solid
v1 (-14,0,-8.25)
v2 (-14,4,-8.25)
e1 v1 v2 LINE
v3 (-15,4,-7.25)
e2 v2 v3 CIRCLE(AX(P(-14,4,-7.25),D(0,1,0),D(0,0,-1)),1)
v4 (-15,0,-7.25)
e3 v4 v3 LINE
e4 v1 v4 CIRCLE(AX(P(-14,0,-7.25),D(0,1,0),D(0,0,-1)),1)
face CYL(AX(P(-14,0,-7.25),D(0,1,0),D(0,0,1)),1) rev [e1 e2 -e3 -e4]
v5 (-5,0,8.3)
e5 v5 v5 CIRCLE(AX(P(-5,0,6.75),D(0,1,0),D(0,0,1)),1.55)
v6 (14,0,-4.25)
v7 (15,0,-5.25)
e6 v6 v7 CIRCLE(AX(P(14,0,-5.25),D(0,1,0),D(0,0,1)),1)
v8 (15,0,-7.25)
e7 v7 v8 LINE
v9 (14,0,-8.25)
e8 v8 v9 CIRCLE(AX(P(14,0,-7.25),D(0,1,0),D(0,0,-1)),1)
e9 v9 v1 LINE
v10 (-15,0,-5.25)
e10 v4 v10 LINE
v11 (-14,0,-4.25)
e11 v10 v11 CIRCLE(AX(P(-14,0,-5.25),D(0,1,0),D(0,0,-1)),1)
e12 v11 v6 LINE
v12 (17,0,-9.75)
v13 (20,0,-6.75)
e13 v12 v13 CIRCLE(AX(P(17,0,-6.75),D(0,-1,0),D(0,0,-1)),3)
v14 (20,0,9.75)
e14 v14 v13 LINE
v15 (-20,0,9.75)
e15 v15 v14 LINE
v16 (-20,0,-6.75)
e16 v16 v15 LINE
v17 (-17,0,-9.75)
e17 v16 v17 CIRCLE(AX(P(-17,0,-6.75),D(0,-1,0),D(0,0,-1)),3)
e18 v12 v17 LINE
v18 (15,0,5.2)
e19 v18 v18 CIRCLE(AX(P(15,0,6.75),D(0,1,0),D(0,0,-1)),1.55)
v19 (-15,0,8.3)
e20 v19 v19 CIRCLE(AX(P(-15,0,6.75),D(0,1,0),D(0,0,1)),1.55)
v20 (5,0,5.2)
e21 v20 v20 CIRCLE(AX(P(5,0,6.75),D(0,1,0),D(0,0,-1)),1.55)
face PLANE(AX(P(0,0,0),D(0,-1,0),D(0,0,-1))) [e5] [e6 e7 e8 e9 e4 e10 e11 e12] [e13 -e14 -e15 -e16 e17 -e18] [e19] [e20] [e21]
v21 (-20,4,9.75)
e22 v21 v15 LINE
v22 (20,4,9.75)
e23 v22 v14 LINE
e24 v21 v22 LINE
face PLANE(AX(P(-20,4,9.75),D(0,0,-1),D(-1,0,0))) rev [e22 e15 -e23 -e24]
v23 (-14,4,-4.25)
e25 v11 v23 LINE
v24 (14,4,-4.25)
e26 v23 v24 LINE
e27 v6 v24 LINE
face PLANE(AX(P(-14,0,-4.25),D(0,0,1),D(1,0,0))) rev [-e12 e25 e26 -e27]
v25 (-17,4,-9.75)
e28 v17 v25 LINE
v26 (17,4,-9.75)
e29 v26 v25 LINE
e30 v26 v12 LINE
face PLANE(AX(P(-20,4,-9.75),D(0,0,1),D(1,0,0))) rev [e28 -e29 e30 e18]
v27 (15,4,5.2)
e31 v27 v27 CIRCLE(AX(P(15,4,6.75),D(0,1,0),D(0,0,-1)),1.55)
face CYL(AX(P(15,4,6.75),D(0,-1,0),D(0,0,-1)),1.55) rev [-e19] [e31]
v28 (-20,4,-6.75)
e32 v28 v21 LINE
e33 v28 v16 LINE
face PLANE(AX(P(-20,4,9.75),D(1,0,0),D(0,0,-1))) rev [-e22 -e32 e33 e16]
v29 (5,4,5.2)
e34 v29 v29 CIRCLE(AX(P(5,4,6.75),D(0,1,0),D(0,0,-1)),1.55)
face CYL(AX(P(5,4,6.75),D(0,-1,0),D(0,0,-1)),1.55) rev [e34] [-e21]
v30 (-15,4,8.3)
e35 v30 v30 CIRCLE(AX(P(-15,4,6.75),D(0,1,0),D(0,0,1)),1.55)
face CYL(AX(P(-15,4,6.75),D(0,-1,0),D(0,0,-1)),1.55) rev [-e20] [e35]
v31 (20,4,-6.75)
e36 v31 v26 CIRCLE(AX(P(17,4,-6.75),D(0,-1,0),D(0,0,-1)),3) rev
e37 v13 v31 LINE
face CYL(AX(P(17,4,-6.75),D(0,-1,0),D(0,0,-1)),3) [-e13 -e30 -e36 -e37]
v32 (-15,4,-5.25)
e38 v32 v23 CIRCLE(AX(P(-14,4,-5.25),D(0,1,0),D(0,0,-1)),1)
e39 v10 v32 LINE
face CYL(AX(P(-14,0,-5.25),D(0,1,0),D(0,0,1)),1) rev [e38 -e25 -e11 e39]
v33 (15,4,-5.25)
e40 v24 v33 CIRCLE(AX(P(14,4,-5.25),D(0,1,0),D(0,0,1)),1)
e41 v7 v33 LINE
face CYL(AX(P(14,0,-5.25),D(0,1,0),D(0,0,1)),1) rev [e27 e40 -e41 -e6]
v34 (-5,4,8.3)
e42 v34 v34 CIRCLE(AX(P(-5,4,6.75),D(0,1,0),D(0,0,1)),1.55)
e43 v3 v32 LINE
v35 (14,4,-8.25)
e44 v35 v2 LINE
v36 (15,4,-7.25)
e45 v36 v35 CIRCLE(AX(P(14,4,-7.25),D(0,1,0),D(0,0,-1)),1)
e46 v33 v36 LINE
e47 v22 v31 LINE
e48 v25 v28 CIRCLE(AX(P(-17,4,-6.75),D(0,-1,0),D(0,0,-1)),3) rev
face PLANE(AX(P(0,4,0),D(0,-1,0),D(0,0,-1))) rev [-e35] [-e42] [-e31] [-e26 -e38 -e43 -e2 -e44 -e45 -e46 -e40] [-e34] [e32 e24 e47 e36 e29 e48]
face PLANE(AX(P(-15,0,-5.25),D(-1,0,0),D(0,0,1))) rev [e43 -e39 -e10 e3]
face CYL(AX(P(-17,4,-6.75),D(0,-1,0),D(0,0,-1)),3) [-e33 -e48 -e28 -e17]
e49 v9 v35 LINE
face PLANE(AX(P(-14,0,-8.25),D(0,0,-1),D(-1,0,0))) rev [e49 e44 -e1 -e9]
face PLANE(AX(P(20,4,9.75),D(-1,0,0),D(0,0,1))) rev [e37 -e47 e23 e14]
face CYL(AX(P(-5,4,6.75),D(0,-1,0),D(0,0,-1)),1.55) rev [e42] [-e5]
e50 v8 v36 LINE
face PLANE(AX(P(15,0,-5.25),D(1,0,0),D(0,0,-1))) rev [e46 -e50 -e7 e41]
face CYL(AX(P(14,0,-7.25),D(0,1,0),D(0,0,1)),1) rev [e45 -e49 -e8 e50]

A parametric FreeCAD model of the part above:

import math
import FreeCAD as App
import Part
import Sketcher
from FreeCAD import Vector
Q = App.Units.Quantity


def edges_at(feature, points):
    """Names of the edges that pass closest to the given points."""
    edges = feature.Shape.Edges
    near = lambda p: min(range(len(edges)), key=lambda i: edges[i].distToShape(Part.Vertex(*p))[0])
    return sorted({f"Edge{near(p) + 1}" for p in points})


def add_polygon(sketch, points):
    """Adds a closed chain of lines whose ends are joined by coincident constraints."""
    first, n = sketch.GeometryCount, len(points)
    for a, b in zip(points, points[1:] + points[:1]):
        sketch.addGeometry(Part.LineSegment(App.Vector(*a, 0), App.Vector(*b, 0)), False)
    for i in range(n):
        sketch.addConstraint(Sketcher.Constraint("Coincident", first + i, 2, first + (i + 1) % n, 1))

doc = App.newDocument("Part")
body = doc.addObject("PartDesign::Body", "Body")

sketch1 = body.newObject("Sketcher::SketchObject", "Sketch")
sketch1.AttachmentSupport = (doc.getObject("XZ_Plane"), [""])
sketch1.MapMode = "FlatFace"
add_polygon(sketch1, [(-20, -9.75), (-20, 9.75), (20, 9.75), (20, -9.75)])
sketch1.addGeometry(Part.Circle(Vector(-15, 6.75, 0), Vector(0, 0, 1), 1.55), False)
sketch1.addGeometry(Part.Circle(Vector(-5, 6.75, 0), Vector(0, 0, 1), 1.55), False)
sketch1.addGeometry(Part.Circle(Vector(5, 6.75, 0), Vector(0, 0, 1), 1.55), False)
sketch1.addGeometry(Part.Circle(Vector(15, 6.75, 0), Vector(0, 0, 1), 1.55), False)
sketch1.addConstraint(Sketcher.Constraint("Vertical", 0))
sketch1.addConstraint(Sketcher.Constraint("Horizontal", 1))
sketch1.addConstraint(Sketcher.Constraint("Vertical", 2))
sketch1.addConstraint(Sketcher.Constraint("Horizontal", 3))
sketch1.addConstraint(Sketcher.Constraint("Equal", 4, 5))
sketch1.addConstraint(Sketcher.Constraint("Equal", 5, 6))
sketch1.addConstraint(Sketcher.Constraint("Equal", 6, 7))
sketch1.addConstraint(Sketcher.Constraint("Symmetric", 0, 2, 2, 2, -1, 1))
sketch1.addConstraint(Sketcher.Constraint("Symmetric", 5, 3, 6, 3, -2))
sketch1.addConstraint(Sketcher.Constraint("Symmetric", 4, 3, 7, 3, -2))
sketch1.addConstraint(Sketcher.Constraint("Horizontal", 4, 3, 5, 3))
sketch1.addConstraint(Sketcher.Constraint("Diameter", 4, Q("3.1 mm")))
sketch1.addConstraint(Sketcher.Constraint("DistanceX", 1, 1, 1, 2, Q("40 mm")))
sketch1.addConstraint(Sketcher.Constraint("DistanceY", 0, 1, 0, 2, Q("19.5 mm")))
sketch1.addConstraint(Sketcher.Constraint("DistanceX", 4, 3, -1, 1, Q("15 mm")))
sketch1.addConstraint(Sketcher.Constraint("DistanceX", 5, 3, -1, 1, Q("5 mm")))
sketch1.addConstraint(Sketcher.Constraint("DistanceY", 4, 3, 0, 2, Q("3 mm")))
pad1 = body.newObject("PartDesign::Pad", "Pad")
pad1.Profile = sketch1
pad1.Length = 4
pad1.Reversed = True

sketch2 = body.newObject("Sketcher::SketchObject", "Sketch001")
sketch2.AttachmentSupport = (doc.getObject("XZ_Plane"), [""])
sketch2.MapMode = "FlatFace"
sketch2.AttachmentOffset = App.Placement(Vector(0, 0, -4), App.Rotation())
sketch2.addGeometry(Part.LineSegment(Vector(-14, -4.25, 0), Vector(14, -4.25, 0)), False)
sketch2.addGeometry(Part.ArcOfCircle(Part.Circle(Vector(14, -5.25, 0), Vector(0, 0, 1), 1), math.radians(0), math.radians(90)), False)
sketch2.addGeometry(Part.LineSegment(Vector(15, -5.25, 0), Vector(15, -7.25, 0)), False)
sketch2.addGeometry(Part.ArcOfCircle(Part.Circle(Vector(14, -7.25, 0), Vector(0, 0, 1), 1), math.radians(-90), math.radians(0)), False)
sketch2.addGeometry(Part.LineSegment(Vector(14, -8.25, 0), Vector(-14, -8.25, 0)), False)
sketch2.addGeometry(Part.ArcOfCircle(Part.Circle(Vector(-14, -7.25, 0), Vector(0, 0, 1), 1), math.radians(-180), math.radians(-90)), False)
sketch2.addGeometry(Part.LineSegment(Vector(-15, -7.25, 0), Vector(-15, -5.25, 0)), False)
sketch2.addGeometry(Part.ArcOfCircle(Part.Circle(Vector(-14, -5.25, 0), Vector(0, 0, 1), 1), math.radians(90), math.radians(180)), False)
sketch2.addConstraint(Sketcher.Constraint("Tangent", 0, 2, 1, 2))
sketch2.addConstraint(Sketcher.Constraint("Tangent", 1, 1, 2, 1))
sketch2.addConstraint(Sketcher.Constraint("Tangent", 2, 2, 3, 2))
sketch2.addConstraint(Sketcher.Constraint("Tangent", 3, 1, 4, 1))
sketch2.addConstraint(Sketcher.Constraint("Tangent", 4, 2, 5, 2))
sketch2.addConstraint(Sketcher.Constraint("Tangent", 5, 1, 6, 1))
sketch2.addConstraint(Sketcher.Constraint("Tangent", 6, 2, 7, 2))
sketch2.addConstraint(Sketcher.Constraint("Tangent", 7, 1, 0, 1))
sketch2.addConstraint(Sketcher.Constraint("Horizontal", 0))
sketch2.addConstraint(Sketcher.Constraint("Vertical", 2))
sketch2.addConstraint(Sketcher.Constraint("Horizontal", 4))
sketch2.addConstraint(Sketcher.Constraint("Vertical", 6))
sketch2.addConstraint(Sketcher.Constraint("Equal", 1, 3))
sketch2.addConstraint(Sketcher.Constraint("Equal", 3, 5))
sketch2.addConstraint(Sketcher.Constraint("Equal", 5, 7))
sketch2.addConstraint(Sketcher.Constraint("Radius", 1, Q("1 mm")))
sketch2.addConstraint(Sketcher.Constraint("DistanceX", 0, 1, 0, 2, Q("28 mm")))
sketch2.addConstraint(Sketcher.Constraint("DistanceY", 2, 2, 2, 1, Q("2 mm")))
sketch2.addConstraint(Sketcher.Constraint("DistanceX", -1, 1, 1, 3, Q("14 mm")))
sketch2.addConstraint(Sketcher.Constraint("DistanceY", 1, 3, -1, 1, Q("5.25 mm")))
pocket1 = body.newObject("PartDesign::Pocket", "Pocket")
pocket1.Profile = sketch2
pocket1.Length = 4
pocket1.Reversed = True
doc.recompute()

fillet = body.newObject("PartDesign::Fillet", "Fillet")
fillet.Base = (pocket1, edges_at(pocket1, [(-20, 2, -9.75), (20, 2, -9.75)]))
fillet.Radius = 3

doc.recompute()
